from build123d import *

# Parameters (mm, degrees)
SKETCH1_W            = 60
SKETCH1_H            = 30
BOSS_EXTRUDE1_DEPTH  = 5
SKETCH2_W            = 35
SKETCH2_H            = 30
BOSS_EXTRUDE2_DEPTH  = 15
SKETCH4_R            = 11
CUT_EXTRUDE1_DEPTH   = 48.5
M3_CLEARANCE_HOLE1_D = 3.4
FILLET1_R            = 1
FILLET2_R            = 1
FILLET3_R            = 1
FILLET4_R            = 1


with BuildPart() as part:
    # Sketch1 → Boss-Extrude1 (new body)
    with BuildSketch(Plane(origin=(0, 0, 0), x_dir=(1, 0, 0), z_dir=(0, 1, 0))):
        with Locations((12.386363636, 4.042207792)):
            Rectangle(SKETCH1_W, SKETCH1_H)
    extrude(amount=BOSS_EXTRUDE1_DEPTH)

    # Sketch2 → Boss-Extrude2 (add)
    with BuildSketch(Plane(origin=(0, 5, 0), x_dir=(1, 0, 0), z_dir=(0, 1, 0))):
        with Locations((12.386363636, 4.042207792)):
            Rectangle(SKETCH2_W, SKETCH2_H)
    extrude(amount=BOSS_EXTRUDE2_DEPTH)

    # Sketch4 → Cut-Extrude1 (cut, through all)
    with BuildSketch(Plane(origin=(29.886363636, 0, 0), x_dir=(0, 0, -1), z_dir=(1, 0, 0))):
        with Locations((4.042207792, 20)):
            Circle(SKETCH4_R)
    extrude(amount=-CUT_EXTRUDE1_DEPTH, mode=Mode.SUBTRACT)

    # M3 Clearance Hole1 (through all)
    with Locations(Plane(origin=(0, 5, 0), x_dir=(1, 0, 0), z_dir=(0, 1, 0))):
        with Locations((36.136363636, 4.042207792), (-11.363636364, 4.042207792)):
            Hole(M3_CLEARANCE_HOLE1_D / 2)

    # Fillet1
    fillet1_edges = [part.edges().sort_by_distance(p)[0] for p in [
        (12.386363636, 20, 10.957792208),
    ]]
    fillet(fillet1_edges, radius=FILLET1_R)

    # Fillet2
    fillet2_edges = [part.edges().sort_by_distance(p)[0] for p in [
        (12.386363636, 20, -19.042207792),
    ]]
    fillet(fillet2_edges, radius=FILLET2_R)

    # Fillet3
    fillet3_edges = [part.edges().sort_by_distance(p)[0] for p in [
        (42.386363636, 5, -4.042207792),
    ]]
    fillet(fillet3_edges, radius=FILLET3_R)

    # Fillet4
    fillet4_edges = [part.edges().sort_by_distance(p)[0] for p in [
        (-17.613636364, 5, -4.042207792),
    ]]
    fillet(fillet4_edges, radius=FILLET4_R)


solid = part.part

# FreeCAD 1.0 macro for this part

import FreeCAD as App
import Part
import Sketcher
from FreeCAD import Vector
Q = App.Units.Quantity


def edges_at(feature, points):
    """Names of the edges that pass closest to the given points."""
    edges = feature.Shape.Edges
    near = lambda p: min(range(len(edges)), key=lambda i: edges[i].distToShape(Part.Vertex(*p))[0])
    return sorted({f"Edge{near(p) + 1}" for p in points})


def add_polygon(sketch, points):
    """Adds a closed chain of lines whose ends are joined by coincident constraints."""
    first, n = sketch.GeometryCount, len(points)
    for a, b in zip(points, points[1:] + points[:1]):
        sketch.addGeometry(Part.LineSegment(App.Vector(*a, 0), App.Vector(*b, 0)), False)
    for i in range(n):
        sketch.addConstraint(Sketcher.Constraint("Coincident", first + i, 2, first + (i + 1) % n, 1))

doc = App.newDocument("Part")
body = doc.addObject("PartDesign::Body", "Body")

# Sketch on XZ plane
sketch1 = doc.addObject("Sketcher::SketchObject", "Sketch")
body.addObject(sketch1)
sketch1.AttachmentSupport = (doc.XZ_Plane, [""])
sketch1.MapMode = "FlatFace"
add_polygon(sketch1, [(-18, -19), (-18, 11), (42, 11), (42, -19)])  # lines 0-3
sketch1.addConstraint(Sketcher.Constraint("Vertical", 0))
sketch1.addConstraint(Sketcher.Constraint("Horizontal", 1))
sketch1.addConstraint(Sketcher.Constraint("Vertical", 2))
sketch1.addConstraint(Sketcher.Constraint("Horizontal", 3))
sketch1.addConstraint(Sketcher.Constraint("DistanceX", 1, 1, 1, 2, Q("60 mm")))
sketch1.addConstraint(Sketcher.Constraint("DistanceY", 0, 1, 0, 2, Q("30 mm")))
sketch1.addConstraint(Sketcher.Constraint("DistanceX", 0, 2, -1, 1, Q("17.613636 mm")))
sketch1.addConstraint(Sketcher.Constraint("DistanceY", -1, 1, 0, 2, Q("10.957792 mm")))
pad1 = doc.addObject("PartDesign::Pad", "Pad")
body.addObject(pad1)
pad1.Profile = sketch1
pad1.Length = 5
pad1.Reversed = True

# Sketch on XZ plane
sketch2 = doc.addObject("Sketcher::SketchObject", "Sketch001")
body.addObject(sketch2)
sketch2.AttachmentSupport = (doc.XZ_Plane, [""])
sketch2.MapMode = "FlatFace"
sketch2.AttachmentOffset = App.Placement(Vector(0, 0, -5), App.Rotation())
add_polygon(sketch2, [(-5, -19), (-5, 11), (30, 11), (30, -19)])  # lines 0-3
sketch2.addConstraint(Sketcher.Constraint("Vertical", 0))
sketch2.addConstraint(Sketcher.Constraint("Horizontal", 1))
sketch2.addConstraint(Sketcher.Constraint("Vertical", 2))
sketch2.addConstraint(Sketcher.Constraint("Horizontal", 3))
sketch2.addConstraint(Sketcher.Constraint("DistanceX", 1, 1, 1, 2, Q("35 mm")))
sketch2.addConstraint(Sketcher.Constraint("DistanceY", 0, 1, 0, 2, Q("30 mm")))
sketch2.addConstraint(Sketcher.Constraint("DistanceX", 0, 2, -1, 1, Q("5.113636 mm")))
sketch2.addConstraint(Sketcher.Constraint("DistanceY", -1, 1, 0, 2, Q("10.957792 mm")))
pad2 = doc.addObject("PartDesign::Pad", "Pad001")
body.addObject(pad2)
pad2.Profile = sketch2
pad2.Length = 15
pad2.Reversed = True

# Sketch on YZ plane
sketch3 = doc.addObject("Sketcher::SketchObject", "Sketch002")
body.addObject(sketch3)
sketch3.AttachmentSupport = (doc.YZ_Plane, [""])
sketch3.MapMode = "FlatFace"
sketch3.AttachmentOffset = App.Placement(Vector(0, 0, 29.886364), App.Rotation())
sketch3.addGeometry(Part.Circle(Vector(20, -4, 0), Vector(0, 0, 1), 11), False)
sketch3.addConstraint(Sketcher.Constraint("Diameter", 0, Q("22 mm")))
sketch3.addConstraint(Sketcher.Constraint("DistanceX", -1, 1, 0, 3, Q("20 mm")))
sketch3.addConstraint(Sketcher.Constraint("DistanceY", 0, 3, -1, 1, Q("4.042208 mm")))
pocket1 = doc.addObject("PartDesign::Pocket", "Pocket")
body.addObject(pocket1)
pocket1.Profile = sketch3
pocket1.Type = "ThroughAll"

# Sketch on XZ plane
sketch4 = doc.addObject("Sketcher::SketchObject", "Sketch003")
body.addObject(sketch4)
sketch4.AttachmentSupport = (doc.XZ_Plane, [""])
sketch4.MapMode = "FlatFace"
sketch4.AttachmentOffset = App.Placement(Vector(0, 0, -5), App.Rotation())
sketch4.addGeometry(Part.Circle(Vector(36.1, -4, 0), Vector(0, 0, 1), 1.7), False)
sketch4.addGeometry(Part.Circle(Vector(-11.4, -4, 0), Vector(0, 0, 1), 1.7), False)
sketch4.addConstraint(Sketcher.Constraint("Equal", 0, 1))
sketch4.addConstraint(Sketcher.Constraint("Horizontal", 0, 3, 1, 3))
sketch4.addConstraint(Sketcher.Constraint("Diameter", 0, Q("3.4 mm")))
sketch4.addConstraint(Sketcher.Constraint("DistanceX", 1, 3, 0, 3, Q("47.5 mm")))
sketch4.addConstraint(Sketcher.Constraint("DistanceX", -1, 1, 0, 3, Q("36.136364 mm")))
sketch4.addConstraint(Sketcher.Constraint("DistanceY", 0, 3, -1, 1, Q("4.042208 mm")))
doc.recompute()
hole = doc.addObject("PartDesign::Hole", "Hole")
body.addObject(hole)
hole.Profile = sketch4
hole.ThreadType = "None"
hole.Diameter = 3.4
hole.DepthType = "ThroughAll"
hole.Reversed = True
doc.recompute()

fillet = doc.addObject("PartDesign::Fillet", "Fillet")
body.addObject(fillet)
fillet.Base = (hole, edges_at(hole, [(12.386, 20, 10.958)]))
fillet.Radius = 1
doc.recompute()

fillet2 = doc.addObject("PartDesign::Fillet", "Fillet001")
body.addObject(fillet2)
fillet2.Base = (fillet, edges_at(fillet, [(12.386, 20, -19.042)]))
fillet2.Radius = 1
doc.recompute()

fillet3 = doc.addObject("PartDesign::Fillet", "Fillet002")
body.addObject(fillet3)
fillet3.Base = (fillet2, edges_at(fillet2, [(42.386, 5, -4.042)]))
fillet3.Radius = 1
doc.recompute()

fillet4 = doc.addObject("PartDesign::Fillet", "Fillet003")
body.addObject(fillet4)
fillet4.Base = (fillet3, edges_at(fillet3, [(-17.614, 5, -4.042)]))
fillet4.Radius = 1

doc.recompute()
